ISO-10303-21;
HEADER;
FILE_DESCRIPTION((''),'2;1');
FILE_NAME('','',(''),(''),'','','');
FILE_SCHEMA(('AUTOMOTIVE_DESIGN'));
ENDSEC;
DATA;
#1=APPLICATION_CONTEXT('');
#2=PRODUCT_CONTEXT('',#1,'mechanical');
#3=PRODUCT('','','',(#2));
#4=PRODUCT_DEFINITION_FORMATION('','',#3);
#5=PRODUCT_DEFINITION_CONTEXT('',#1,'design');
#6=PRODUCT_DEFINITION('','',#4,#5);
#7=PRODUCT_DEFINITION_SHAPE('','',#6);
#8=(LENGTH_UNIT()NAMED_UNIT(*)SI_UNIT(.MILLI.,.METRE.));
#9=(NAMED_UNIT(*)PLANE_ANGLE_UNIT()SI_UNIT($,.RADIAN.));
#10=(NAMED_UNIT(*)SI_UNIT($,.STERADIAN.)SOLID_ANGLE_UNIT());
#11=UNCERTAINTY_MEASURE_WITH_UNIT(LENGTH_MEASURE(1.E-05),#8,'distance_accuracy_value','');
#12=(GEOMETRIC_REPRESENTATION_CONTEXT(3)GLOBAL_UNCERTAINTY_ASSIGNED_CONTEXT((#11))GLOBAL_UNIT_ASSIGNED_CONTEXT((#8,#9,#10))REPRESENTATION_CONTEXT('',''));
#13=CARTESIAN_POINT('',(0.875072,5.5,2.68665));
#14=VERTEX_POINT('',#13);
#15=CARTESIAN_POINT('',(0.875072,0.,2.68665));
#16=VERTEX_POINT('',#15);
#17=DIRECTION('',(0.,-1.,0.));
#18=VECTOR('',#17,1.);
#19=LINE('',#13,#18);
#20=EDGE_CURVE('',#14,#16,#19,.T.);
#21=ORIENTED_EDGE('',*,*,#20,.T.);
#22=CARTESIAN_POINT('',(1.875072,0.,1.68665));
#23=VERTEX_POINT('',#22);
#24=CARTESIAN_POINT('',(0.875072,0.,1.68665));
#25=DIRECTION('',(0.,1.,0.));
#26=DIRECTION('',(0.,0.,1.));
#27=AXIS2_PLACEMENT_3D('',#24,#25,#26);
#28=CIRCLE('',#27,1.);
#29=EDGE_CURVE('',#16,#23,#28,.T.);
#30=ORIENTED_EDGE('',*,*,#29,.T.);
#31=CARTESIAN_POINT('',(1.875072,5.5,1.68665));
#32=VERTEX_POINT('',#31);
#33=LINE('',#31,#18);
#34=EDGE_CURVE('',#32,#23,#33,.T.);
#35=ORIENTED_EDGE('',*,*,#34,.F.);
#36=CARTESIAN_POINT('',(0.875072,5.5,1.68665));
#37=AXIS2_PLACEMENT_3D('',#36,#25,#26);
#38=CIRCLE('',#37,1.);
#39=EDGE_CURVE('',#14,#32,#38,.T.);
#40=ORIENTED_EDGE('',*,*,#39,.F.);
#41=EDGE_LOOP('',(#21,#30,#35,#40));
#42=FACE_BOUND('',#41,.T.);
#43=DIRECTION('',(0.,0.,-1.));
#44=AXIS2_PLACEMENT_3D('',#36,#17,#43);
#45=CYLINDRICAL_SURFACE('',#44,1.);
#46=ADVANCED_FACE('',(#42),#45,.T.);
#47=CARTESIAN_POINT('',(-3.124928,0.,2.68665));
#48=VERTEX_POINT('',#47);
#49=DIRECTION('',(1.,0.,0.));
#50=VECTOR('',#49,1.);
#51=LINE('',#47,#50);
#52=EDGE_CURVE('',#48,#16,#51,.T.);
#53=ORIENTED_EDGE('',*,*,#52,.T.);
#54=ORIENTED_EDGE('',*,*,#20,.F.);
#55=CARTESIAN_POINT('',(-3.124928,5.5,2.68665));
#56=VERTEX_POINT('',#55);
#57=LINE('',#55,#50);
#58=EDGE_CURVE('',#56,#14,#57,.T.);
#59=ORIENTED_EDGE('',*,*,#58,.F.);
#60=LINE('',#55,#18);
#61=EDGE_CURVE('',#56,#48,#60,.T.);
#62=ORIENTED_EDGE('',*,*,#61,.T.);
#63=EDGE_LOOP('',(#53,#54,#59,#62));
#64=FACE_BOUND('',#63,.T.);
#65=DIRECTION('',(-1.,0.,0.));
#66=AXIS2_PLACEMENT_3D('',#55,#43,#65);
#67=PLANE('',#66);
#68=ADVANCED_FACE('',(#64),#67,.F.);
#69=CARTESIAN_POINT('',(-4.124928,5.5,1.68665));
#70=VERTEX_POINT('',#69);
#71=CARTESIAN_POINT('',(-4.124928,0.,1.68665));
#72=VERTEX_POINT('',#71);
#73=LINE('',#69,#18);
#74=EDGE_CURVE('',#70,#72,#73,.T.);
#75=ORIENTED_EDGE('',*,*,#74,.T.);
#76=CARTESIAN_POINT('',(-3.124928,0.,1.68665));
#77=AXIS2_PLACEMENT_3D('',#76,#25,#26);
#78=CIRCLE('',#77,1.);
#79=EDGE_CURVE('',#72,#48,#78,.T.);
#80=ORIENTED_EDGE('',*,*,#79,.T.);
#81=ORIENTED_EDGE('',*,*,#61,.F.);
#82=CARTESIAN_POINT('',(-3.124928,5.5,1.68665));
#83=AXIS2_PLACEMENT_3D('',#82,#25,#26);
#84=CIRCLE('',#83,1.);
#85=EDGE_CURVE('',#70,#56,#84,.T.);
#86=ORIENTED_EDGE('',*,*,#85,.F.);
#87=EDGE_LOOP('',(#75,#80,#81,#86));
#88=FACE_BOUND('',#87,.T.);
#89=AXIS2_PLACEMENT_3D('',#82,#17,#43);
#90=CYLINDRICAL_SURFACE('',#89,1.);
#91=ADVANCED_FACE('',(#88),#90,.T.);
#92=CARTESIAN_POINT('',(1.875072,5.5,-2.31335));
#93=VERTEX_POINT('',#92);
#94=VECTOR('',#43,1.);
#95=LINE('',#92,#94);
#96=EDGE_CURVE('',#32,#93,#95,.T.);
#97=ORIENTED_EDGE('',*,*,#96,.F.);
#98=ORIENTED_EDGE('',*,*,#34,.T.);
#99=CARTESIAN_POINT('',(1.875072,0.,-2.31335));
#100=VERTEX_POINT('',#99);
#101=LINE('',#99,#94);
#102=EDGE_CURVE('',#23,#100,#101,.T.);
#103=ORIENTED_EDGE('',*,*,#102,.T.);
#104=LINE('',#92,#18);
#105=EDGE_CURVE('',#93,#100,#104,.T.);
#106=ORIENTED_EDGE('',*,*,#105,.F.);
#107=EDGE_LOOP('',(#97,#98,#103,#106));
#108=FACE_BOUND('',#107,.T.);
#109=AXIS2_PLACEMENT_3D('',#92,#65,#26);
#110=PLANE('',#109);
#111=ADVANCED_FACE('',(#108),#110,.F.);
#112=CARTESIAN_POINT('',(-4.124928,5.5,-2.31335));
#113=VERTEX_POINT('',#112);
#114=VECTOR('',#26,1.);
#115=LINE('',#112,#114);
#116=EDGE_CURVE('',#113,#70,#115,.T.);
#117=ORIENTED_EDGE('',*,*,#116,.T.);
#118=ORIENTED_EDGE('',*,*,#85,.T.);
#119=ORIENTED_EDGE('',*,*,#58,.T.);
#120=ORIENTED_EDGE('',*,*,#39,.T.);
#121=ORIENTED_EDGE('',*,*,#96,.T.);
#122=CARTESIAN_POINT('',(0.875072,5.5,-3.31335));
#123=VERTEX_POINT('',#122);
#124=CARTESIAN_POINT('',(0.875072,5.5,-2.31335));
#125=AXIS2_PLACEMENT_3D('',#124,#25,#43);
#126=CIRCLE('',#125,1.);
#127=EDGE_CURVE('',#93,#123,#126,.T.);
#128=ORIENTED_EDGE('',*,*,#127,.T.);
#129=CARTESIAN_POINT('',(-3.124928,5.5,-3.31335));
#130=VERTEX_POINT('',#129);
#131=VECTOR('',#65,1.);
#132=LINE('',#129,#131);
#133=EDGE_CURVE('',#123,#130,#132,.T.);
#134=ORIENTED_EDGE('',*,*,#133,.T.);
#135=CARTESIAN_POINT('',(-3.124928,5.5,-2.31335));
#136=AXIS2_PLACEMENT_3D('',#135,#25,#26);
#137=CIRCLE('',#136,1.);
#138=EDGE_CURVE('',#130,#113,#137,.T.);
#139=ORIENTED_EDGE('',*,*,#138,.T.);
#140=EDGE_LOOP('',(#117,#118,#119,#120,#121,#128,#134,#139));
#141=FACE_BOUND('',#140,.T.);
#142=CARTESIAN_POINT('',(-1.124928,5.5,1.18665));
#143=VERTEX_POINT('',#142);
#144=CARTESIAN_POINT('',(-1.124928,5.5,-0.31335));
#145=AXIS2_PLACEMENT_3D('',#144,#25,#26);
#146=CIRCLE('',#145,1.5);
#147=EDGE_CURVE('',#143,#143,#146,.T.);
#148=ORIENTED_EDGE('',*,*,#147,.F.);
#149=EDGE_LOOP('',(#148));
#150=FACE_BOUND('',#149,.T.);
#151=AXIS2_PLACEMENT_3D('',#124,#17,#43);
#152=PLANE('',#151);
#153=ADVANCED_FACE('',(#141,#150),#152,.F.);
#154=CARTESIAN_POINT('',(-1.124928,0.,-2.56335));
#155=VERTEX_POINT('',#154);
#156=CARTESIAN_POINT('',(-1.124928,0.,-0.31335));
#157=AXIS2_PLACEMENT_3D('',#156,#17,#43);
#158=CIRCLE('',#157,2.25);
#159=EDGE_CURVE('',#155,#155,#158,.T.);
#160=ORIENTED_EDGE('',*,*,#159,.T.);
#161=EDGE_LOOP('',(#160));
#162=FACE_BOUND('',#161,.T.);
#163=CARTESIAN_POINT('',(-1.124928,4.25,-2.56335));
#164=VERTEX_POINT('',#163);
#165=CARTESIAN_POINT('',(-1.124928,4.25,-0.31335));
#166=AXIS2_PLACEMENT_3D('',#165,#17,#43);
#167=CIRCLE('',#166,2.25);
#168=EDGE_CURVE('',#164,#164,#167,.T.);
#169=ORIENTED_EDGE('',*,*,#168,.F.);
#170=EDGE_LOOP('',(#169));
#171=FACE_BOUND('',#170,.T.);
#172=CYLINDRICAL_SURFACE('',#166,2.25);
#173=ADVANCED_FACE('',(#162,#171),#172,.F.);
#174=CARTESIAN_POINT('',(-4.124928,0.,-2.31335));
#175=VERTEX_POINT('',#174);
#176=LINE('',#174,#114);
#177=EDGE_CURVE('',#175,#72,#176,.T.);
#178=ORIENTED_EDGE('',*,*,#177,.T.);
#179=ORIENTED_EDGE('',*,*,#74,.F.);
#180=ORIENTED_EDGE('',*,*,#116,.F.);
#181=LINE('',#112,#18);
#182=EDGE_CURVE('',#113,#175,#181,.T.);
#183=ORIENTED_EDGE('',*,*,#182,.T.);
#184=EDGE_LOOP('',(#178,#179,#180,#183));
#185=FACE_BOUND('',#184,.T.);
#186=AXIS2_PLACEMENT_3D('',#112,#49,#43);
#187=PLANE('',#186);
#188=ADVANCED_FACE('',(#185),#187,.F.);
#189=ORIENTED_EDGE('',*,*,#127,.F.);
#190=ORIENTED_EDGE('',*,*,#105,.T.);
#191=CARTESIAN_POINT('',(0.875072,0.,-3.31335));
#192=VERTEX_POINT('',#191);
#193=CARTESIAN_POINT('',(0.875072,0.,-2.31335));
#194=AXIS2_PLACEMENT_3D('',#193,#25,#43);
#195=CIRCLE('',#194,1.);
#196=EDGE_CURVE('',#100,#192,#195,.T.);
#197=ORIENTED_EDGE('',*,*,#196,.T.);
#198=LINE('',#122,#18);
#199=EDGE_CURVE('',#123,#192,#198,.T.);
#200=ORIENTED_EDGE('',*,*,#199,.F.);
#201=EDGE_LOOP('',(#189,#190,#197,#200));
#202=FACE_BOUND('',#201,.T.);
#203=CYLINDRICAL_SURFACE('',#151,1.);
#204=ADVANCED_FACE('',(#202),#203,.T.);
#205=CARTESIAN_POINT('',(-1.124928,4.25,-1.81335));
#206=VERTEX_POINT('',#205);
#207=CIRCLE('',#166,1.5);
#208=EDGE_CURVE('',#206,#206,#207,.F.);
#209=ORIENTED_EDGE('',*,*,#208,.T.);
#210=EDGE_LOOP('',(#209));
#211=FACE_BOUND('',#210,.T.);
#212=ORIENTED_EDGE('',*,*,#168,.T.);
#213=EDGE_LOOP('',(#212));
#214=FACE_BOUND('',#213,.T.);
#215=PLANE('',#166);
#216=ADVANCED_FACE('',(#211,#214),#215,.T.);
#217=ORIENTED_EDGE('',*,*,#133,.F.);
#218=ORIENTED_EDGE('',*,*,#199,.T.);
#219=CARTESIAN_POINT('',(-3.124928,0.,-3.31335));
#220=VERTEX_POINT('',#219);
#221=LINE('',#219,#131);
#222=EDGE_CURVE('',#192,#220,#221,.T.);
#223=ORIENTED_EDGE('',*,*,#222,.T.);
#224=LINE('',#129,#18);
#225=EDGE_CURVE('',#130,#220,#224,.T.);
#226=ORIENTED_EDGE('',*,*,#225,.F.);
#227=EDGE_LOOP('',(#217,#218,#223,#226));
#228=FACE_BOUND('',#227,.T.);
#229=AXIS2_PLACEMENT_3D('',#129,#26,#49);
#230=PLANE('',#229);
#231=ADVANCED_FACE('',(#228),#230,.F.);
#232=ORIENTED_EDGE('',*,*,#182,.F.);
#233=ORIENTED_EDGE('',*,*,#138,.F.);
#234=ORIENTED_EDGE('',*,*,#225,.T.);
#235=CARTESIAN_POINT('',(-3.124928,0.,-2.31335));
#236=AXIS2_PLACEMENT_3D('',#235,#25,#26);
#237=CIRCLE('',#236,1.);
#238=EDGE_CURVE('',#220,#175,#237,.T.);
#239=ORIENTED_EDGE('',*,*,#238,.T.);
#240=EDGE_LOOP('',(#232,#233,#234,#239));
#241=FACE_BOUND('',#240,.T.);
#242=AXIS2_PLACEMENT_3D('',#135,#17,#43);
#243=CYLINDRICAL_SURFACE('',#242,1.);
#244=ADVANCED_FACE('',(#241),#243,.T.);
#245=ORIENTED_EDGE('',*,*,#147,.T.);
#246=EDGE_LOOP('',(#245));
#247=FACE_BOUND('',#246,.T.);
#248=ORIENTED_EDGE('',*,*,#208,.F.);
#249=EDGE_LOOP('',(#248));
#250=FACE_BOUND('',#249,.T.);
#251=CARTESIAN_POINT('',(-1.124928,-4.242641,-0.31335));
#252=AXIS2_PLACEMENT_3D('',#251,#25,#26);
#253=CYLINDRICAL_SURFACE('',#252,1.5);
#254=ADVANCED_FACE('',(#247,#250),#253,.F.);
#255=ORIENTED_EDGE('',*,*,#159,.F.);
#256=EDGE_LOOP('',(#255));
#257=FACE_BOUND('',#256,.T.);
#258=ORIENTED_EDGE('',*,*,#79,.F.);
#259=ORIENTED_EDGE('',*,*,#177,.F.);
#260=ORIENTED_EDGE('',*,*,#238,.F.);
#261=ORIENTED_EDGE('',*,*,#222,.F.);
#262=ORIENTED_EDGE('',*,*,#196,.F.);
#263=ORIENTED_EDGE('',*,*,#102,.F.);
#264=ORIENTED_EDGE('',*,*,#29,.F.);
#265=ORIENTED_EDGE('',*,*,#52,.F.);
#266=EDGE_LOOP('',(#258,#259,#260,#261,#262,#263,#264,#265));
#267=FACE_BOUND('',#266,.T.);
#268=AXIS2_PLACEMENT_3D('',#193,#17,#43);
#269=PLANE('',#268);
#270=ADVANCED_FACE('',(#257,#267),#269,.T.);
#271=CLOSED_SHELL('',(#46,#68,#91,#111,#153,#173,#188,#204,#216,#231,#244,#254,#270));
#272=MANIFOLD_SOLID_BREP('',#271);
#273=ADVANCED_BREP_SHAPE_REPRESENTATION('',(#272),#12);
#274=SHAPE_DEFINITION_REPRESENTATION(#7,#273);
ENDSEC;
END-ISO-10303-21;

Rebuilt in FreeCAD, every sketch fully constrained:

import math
import FreeCAD as App
import Part
import Sketcher
from FreeCAD import Vector
Q = App.Units.Quantity

doc = App.newDocument("Part")
body = doc.addObject("PartDesign::Body", "Body")

# Sketch on XZ plane
sketch1 = body.newObject("Sketcher::SketchObject", "Sketch")
sketch1.AttachmentSupport = (doc.getObject("XZ_Plane"), [""])
sketch1.MapMode = "FlatFace"
sketch1.addGeometry([
    Part.LineSegment(Vector(0.9, -3.3, 0), Vector(-3.1, -3.3, 0)),  # 0
    Part.ArcOfCircle(Part.Circle(Vector(-3.1, -2.3, 0), Vector(0, 0, 1), 1), math.radians(-180), math.radians(-90)),  # 1
    Part.LineSegment(Vector(-4.1, -2.3, 0), Vector(-4.1, 1.7, 0)),  # 2
    Part.ArcOfCircle(Part.Circle(Vector(-3.1, 1.7, 0), Vector(0, 0, 1), 1), math.radians(90), math.radians(180)),  # 3
    Part.LineSegment(Vector(-3.1, 2.7, 0), Vector(0.9, 2.7, 0)),  # 4
    Part.ArcOfCircle(Part.Circle(Vector(0.9, 1.7, 0), Vector(0, 0, 1), 1), math.radians(0), math.radians(90)),  # 5
    Part.LineSegment(Vector(1.9, 1.7, 0), Vector(1.9, -2.3, 0)),  # 6
    Part.ArcOfCircle(Part.Circle(Vector(0.9, -2.3, 0), Vector(0, 0, 1), 1), math.radians(-90), math.radians(0)),  # 7
], False)
sketch1.addConstraint([
    Sketcher.Constraint("Tangent", 0, 2, 1, 2),
    Sketcher.Constraint("Tangent", 1, 1, 2, 1),
    Sketcher.Constraint("Tangent", 2, 2, 3, 2),
    Sketcher.Constraint("Tangent", 3, 1, 4, 1),
    Sketcher.Constraint("Tangent", 4, 2, 5, 2),
    Sketcher.Constraint("Tangent", 5, 1, 6, 1),
    Sketcher.Constraint("Tangent", 6, 2, 7, 2),
    Sketcher.Constraint("Tangent", 7, 1, 0, 1),
    Sketcher.Constraint("Horizontal", 0),
    Sketcher.Constraint("Vertical", 2),
    Sketcher.Constraint("Horizontal", 4),
    Sketcher.Constraint("Vertical", 6),
    Sketcher.Constraint("Equal", 1, 3),
    Sketcher.Constraint("Equal", 3, 5),
    Sketcher.Constraint("Equal", 5, 7),
    Sketcher.Constraint("Equal", 4, 2),
    Sketcher.Constraint("Radius", 1, Q("1 mm")),
    Sketcher.Constraint("DistanceX", 0, 2, 0, 1, Q("4 mm")),
    Sketcher.Constraint("DistanceY", 1, 3, -1, 1, Q("2.31335 mm")),
    Sketcher.Constraint("DistanceX", 1, 3, -1, 1, Q("3.124928 mm")),
])
pad1 = body.newObject("PartDesign::Pad", "Pad")
pad1.Profile = sketch1
pad1.Length = 5.5
pad1.Reversed = True

# Sketch on XZ plane
sketch2 = body.newObject("Sketcher::SketchObject", "Sketch001")
sketch2.AttachmentSupport = (doc.getObject("XZ_Plane"), [""])
sketch2.MapMode = "FlatFace"
sketch2.AttachmentOffset = App.Placement(Vector(0, 0, -5.5), App.Rotation())
sketch2.addGeometry(Part.Circle(Vector(-1.1, -0.3, 0), Vector(0, 0, 1), 1.5), False)
sketch2.addConstraint([
    Sketcher.Constraint("Diameter", 0, Q("3 mm")),
    Sketcher.Constraint("DistanceY", 0, 3, -1, 1, Q("0.31335 mm")),
    Sketcher.Constraint("DistanceX", 0, 3, -1, 1, Q("1.124928 mm")),
])
pocket1 = body.newObject("PartDesign::Pocket", "Pocket")
pocket1.Profile = sketch2
pocket1.Length = 5.5
pocket1.Reversed = True

# Sketch on XZ plane
sketch3 = body.newObject("Sketcher::SketchObject", "Sketch002")
sketch3.AttachmentSupport = (doc.getObject("XZ_Plane"), [""])
sketch3.MapMode = "FlatFace"
sketch3.addGeometry(Part.Circle(Vector(-1.1, -0.3, 0), Vector(0, 0, 1), 2.2), False)
sketch3.addConstraint([
    Sketcher.Constraint("Diameter", 0, Q("4.5 mm")),
    Sketcher.Constraint("DistanceY", 0, 3, -1, 1, Q("0.31335 mm")),
    Sketcher.Constraint("DistanceX", 0, 3, -1, 1, Q("1.124928 mm")),
])
pocket2 = body.newObject("PartDesign::Pocket", "Pocket001")
pocket2.Profile = sketch3
pocket2.Length = 4.25

doc.recompute()
